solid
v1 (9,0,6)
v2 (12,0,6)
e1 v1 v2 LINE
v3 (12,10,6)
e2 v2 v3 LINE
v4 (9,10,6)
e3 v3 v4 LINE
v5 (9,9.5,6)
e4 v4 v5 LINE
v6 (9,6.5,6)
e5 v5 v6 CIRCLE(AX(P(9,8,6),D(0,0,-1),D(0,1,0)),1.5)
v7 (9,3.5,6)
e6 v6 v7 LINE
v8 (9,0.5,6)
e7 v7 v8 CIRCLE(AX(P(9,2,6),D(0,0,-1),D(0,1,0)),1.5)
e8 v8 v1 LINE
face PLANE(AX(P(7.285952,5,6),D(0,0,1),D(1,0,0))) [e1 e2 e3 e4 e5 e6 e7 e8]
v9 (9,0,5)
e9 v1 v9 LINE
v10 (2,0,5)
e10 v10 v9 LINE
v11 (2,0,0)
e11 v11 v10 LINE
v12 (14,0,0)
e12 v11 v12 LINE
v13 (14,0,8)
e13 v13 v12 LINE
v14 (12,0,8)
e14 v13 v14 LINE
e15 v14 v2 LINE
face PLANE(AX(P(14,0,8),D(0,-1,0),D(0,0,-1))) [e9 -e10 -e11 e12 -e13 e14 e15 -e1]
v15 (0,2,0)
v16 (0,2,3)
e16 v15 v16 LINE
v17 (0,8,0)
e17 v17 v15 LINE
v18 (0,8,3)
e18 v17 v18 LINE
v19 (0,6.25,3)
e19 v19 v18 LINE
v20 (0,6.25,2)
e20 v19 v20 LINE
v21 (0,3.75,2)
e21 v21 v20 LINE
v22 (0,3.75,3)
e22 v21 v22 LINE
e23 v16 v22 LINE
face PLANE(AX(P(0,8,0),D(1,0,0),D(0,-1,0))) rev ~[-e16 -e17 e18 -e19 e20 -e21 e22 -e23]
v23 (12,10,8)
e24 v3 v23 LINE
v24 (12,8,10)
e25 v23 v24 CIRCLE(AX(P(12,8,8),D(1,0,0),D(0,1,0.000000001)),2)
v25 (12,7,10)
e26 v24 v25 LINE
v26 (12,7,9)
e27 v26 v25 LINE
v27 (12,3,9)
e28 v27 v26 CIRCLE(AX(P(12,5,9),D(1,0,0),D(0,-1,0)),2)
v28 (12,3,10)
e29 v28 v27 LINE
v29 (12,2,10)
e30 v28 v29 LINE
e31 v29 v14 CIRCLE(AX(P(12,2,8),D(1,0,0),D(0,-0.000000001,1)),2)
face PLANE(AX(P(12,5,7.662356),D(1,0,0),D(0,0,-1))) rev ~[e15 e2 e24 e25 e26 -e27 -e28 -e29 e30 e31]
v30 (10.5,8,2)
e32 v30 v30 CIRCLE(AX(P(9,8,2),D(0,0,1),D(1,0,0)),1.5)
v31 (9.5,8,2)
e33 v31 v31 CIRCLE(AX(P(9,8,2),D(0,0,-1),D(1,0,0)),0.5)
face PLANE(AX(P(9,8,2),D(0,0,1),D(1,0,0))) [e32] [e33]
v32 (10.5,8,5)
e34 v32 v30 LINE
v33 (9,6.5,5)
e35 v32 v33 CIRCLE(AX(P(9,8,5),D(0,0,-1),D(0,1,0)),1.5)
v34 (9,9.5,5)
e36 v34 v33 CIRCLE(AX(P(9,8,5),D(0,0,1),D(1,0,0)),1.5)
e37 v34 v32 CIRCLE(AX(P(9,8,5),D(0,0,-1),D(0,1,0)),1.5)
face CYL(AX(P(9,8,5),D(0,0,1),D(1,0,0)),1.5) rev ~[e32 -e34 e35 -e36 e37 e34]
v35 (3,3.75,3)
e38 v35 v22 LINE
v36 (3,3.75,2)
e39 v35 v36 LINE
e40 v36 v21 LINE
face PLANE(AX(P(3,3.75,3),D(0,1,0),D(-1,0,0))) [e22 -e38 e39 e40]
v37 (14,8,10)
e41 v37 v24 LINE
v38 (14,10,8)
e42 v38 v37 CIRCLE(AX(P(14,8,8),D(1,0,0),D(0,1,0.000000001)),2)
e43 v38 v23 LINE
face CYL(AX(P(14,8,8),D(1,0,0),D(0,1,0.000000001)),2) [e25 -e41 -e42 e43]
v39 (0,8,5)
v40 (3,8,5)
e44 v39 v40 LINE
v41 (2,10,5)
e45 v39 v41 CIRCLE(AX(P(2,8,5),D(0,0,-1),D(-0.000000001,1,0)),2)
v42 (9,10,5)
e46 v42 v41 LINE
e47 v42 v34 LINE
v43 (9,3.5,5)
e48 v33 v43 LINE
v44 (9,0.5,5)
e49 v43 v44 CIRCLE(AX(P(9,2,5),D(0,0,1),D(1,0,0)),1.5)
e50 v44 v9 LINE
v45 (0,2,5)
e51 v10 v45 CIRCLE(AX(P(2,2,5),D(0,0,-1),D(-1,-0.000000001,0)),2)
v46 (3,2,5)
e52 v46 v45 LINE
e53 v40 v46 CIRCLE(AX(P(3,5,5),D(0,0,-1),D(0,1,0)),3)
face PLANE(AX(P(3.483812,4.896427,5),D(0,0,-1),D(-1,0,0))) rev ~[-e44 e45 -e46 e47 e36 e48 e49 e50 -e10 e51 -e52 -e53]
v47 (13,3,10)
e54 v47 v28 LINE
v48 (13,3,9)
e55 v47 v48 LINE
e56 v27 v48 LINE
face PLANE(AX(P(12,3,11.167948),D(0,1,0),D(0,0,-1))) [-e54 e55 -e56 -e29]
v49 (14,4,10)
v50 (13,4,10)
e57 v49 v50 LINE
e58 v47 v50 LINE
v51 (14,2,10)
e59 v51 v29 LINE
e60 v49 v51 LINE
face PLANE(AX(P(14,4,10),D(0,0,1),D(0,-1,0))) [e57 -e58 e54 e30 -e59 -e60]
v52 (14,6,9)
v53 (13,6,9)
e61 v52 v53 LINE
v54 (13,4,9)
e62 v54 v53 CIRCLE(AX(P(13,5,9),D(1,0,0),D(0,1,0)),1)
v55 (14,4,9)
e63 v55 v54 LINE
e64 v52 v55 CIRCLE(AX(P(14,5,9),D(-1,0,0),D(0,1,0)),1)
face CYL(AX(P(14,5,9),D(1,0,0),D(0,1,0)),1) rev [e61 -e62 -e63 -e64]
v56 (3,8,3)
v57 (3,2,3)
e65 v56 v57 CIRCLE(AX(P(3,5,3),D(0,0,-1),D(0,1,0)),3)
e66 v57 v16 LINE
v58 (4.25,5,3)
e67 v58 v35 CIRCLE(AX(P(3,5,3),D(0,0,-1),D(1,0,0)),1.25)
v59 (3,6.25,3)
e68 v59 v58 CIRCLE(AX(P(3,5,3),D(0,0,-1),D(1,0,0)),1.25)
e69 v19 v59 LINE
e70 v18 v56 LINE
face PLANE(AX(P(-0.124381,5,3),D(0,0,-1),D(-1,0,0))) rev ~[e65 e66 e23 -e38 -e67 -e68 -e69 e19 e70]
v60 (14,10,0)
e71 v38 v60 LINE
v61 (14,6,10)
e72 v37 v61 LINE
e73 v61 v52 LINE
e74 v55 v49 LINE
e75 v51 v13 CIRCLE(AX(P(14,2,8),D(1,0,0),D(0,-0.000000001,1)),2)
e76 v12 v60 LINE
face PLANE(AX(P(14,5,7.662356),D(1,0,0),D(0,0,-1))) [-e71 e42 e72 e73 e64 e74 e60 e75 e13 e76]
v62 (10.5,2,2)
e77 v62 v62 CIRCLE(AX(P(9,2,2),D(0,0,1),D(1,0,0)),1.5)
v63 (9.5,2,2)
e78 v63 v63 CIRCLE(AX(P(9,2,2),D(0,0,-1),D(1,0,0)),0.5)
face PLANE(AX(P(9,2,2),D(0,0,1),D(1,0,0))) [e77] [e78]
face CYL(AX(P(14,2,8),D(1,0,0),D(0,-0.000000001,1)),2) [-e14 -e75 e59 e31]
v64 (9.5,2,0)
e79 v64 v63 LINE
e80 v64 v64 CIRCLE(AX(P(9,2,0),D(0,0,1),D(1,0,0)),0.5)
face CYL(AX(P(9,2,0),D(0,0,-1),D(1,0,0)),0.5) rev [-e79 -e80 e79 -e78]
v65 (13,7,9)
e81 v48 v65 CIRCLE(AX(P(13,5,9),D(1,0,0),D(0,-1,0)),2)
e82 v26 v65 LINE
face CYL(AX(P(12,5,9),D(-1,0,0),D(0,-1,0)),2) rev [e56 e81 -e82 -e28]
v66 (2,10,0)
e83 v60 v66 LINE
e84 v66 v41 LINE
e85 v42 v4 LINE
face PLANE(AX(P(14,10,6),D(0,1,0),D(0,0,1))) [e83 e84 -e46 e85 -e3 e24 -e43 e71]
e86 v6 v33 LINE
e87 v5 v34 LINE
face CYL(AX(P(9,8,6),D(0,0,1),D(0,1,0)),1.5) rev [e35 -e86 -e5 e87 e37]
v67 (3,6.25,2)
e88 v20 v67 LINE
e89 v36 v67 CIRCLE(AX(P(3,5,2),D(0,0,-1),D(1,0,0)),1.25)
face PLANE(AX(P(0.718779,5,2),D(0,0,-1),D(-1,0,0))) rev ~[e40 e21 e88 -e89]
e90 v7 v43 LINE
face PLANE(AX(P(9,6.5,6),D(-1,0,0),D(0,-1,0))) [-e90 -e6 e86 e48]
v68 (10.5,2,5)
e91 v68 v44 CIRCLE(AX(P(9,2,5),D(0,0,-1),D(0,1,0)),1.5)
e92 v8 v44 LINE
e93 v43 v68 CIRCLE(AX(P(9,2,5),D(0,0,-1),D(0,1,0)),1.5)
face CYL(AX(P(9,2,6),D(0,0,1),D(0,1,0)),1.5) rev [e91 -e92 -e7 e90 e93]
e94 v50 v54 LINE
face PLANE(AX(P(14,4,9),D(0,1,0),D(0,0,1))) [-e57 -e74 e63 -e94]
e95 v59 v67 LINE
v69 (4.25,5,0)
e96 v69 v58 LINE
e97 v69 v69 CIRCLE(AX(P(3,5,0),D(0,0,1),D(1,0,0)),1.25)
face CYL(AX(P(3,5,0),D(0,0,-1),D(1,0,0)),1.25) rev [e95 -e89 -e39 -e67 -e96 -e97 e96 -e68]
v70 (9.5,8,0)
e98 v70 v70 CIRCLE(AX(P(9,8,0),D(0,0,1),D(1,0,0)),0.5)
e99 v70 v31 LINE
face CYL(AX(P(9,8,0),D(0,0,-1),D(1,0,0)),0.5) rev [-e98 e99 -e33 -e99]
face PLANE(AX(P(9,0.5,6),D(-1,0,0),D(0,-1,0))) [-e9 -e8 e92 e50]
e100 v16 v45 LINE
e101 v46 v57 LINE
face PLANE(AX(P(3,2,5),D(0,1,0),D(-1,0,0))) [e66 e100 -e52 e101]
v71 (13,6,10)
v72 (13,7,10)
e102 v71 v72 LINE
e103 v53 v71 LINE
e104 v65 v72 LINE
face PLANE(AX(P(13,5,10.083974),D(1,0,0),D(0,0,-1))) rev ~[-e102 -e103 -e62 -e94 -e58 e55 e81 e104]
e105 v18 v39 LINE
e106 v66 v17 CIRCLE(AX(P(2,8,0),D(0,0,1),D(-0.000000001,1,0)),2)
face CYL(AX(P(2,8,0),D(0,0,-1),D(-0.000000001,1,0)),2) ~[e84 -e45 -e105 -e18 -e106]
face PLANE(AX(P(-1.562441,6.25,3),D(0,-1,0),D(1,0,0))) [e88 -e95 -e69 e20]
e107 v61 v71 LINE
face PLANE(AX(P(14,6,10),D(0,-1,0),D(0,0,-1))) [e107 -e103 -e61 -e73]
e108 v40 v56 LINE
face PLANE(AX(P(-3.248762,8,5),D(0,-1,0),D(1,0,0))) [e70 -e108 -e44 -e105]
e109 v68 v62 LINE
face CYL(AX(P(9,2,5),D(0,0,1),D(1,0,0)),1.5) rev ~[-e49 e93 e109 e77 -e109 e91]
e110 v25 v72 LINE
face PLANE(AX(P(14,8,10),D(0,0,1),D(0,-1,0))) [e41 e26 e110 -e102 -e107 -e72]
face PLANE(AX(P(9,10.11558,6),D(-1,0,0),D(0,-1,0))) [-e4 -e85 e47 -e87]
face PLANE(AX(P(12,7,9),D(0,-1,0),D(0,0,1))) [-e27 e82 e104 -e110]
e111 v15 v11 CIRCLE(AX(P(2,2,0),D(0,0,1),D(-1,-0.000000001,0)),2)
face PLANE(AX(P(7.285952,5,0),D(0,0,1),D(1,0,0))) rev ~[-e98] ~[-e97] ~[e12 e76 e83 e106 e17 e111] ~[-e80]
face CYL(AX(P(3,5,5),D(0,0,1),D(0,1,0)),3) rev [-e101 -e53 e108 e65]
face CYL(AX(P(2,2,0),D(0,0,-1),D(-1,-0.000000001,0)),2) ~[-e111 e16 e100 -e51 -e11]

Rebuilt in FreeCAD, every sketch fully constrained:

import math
import FreeCAD as App
import Part
import Sketcher

V = App.Vector
Q = App.Units.Quantity

doc = App.newDocument("Part")
body = doc.addObject("PartDesign::Body", "Body")

# Sketch on XY plane
sketch1 = body.newObject("Sketcher::SketchObject", "Sketch")
sketch1.AttachmentSupport = (doc.getObject("XY_Plane"), [""])
sketch1.MapMode = "FlatFace"
sketch1.addGeometry([
    Part.LineSegment(V(2, 0, 0), V(14, 0, 0)),  # 0
    Part.LineSegment(V(14, 0, 0), V(14, 10, 0)),  # 1
    Part.LineSegment(V(14, 10, 0), V(2, 10, 0)),  # 2
    Part.ArcOfCircle(Part.Circle(V(2, 8, 0), V(0, 0, 1), 2), math.radians(90), math.radians(180)),  # 3
    Part.LineSegment(V(0, 8, 0), V(0, 2, 0)),  # 4
    Part.ArcOfCircle(Part.Circle(V(2, 2, 0), V(0, 0, 1), 2), math.radians(-180), math.radians(-90)),  # 5
    Part.Circle(V(9, 2, 0), V(0, 0, 1), 0.5),  # 6
    Part.Circle(V(3, 5, 0), V(0, 0, 1), 1.2),  # 7
    Part.Circle(V(9, 8, 0), V(0, 0, 1), 0.5),  # 8
], False)
sketch1.addConstraint([
    Sketcher.Constraint("Coincident", 0, 2, 1, 1),
    Sketcher.Constraint("Coincident", 1, 2, 2, 1),
    Sketcher.Constraint("Tangent", 2, 2, 3, 1),
    Sketcher.Constraint("Tangent", 3, 2, 4, 1),
    Sketcher.Constraint("Tangent", 4, 2, 5, 1),
    Sketcher.Constraint("Tangent", 5, 2, 0, 1),
    Sketcher.Constraint("Horizontal", 0),
    Sketcher.Constraint("Vertical", 1),
    Sketcher.Constraint("Horizontal", 2),
    Sketcher.Constraint("Vertical", 4),
    Sketcher.Constraint("Equal", 3, 5),
    Sketcher.Constraint("Equal", 6, 8),
    Sketcher.Constraint("PointOnObject", 0, 2, -1),
    Sketcher.Constraint("PointOnObject", 3, 2, -2),
    Sketcher.Constraint("Horizontal", 5, 3, 6, 3),
    Sketcher.Constraint("Horizontal", 3, 3, 8, 3),
    Sketcher.Constraint("Vertical", 6, 3, 8, 3),
    Sketcher.Constraint("Diameter", 6, Q("1 mm")),
    Sketcher.Constraint("Radius", 3, Q("2 mm")),
    Sketcher.Constraint("Diameter", 7, Q("2.5 mm")),
    Sketcher.Constraint("DistanceX", 0, 1, 0, 2, Q("12 mm")),
    Sketcher.Constraint("DistanceY", 1, 1, 1, 2, Q("10 mm")),
    Sketcher.Constraint("DistanceX", -1, 1, 6, 3, Q("9 mm")),
    Sketcher.Constraint("DistanceX", -1, 1, 7, 3, Q("3 mm")),
    Sketcher.Constraint("DistanceY", -1, 1, 7, 3, Q("5 mm")),
])
pad1 = body.newObject("PartDesign::Pad", "Pad")
pad1.Profile = sketch1
pad1.Length = 6

# Sketch on YZ plane
sketch2 = body.newObject("Sketcher::SketchObject", "Sketch001")
sketch2.AttachmentSupport = (doc.getObject("YZ_Plane"), [""])
sketch2.MapMode = "FlatFace"
sketch2.AttachmentOffset = App.Placement(V(0, 0, 14), App.Rotation())
sketch2.addGeometry([
    Part.LineSegment(V(0, 6, 0), V(10, 6, 0)),  # 0
    Part.LineSegment(V(10, 6, 0), V(10, 8, 0)),  # 1
    Part.ArcOfCircle(Part.Circle(V(8, 8, 0), V(0, 0, 1), 2), math.radians(0), math.radians(90)),  # 2
    Part.LineSegment(V(8, 10, 0), V(6, 10, 0)),  # 3
    Part.LineSegment(V(6, 10, 0), V(6, 9, 0)),  # 4
    Part.ArcOfCircle(Part.Circle(V(5, 9, 0), V(0, 0, 1), 1), math.radians(180), math.radians(360)),  # 5
    Part.LineSegment(V(4, 9, 0), V(4, 10, 0)),  # 6
    Part.LineSegment(V(4, 10, 0), V(2, 10, 0)),  # 7
    Part.ArcOfCircle(Part.Circle(V(2, 8, 0), V(0, 0, 1), 2), math.radians(90), math.radians(180)),  # 8
    Part.LineSegment(V(0, 8, 0), V(0, 6, 0)),  # 9
], False)
sketch2.addConstraint([
    Sketcher.Constraint("Coincident", 0, 2, 1, 1),
    Sketcher.Constraint("Tangent", 1, 2, 2, 1),
    Sketcher.Constraint("Tangent", 2, 2, 3, 1),
    Sketcher.Constraint("Coincident", 3, 2, 4, 1),
    Sketcher.Constraint("Tangent", 4, 2, 5, 2),
    Sketcher.Constraint("Tangent", 5, 1, 6, 1),
    Sketcher.Constraint("Coincident", 6, 2, 7, 1),
    Sketcher.Constraint("Tangent", 7, 2, 8, 1),
    Sketcher.Constraint("Tangent", 8, 2, 9, 1),
    Sketcher.Constraint("Coincident", 9, 2, 0, 1),
    Sketcher.Constraint("Horizontal", 0),
    Sketcher.Constraint("Vertical", 1),
    Sketcher.Constraint("Horizontal", 3),
    Sketcher.Constraint("Vertical", 4),
    Sketcher.Constraint("Vertical", 6),
    Sketcher.Constraint("Horizontal", 7),
    Sketcher.Constraint("Vertical", 9),
    Sketcher.Constraint("Equal", 2, 8),
    Sketcher.Constraint("PointOnObject", 8, 2, -2),
    Sketcher.Constraint("Horizontal", 2, 3, 8, 3),
    Sketcher.Constraint("Equal", 3, 7),
    Sketcher.Constraint("Equal", 7, 1),
    Sketcher.Constraint("Radius", 2, Q("2 mm")),
    Sketcher.Constraint("Radius", 5, Q("1 mm")),
    Sketcher.Constraint("DistanceX", 0, 1, 0, 2, Q("10 mm")),
    Sketcher.Constraint("DistanceY", 4, 2, 4, 1, Q("1 mm")),
    Sketcher.Constraint("DistanceY", -1, 1, 2, 3, Q("8 mm")),
])
pad2 = body.newObject("PartDesign::Pad", "Pad001")
pad2.Profile = sketch2
pad2.Length = 2
pad2.Reversed = True

# Sketch on YZ plane
sketch3 = body.newObject("Sketcher::SketchObject", "Sketch002")
sketch3.AttachmentSupport = (doc.getObject("YZ_Plane"), [""])
sketch3.MapMode = "FlatFace"
sketch3.AttachmentOffset = App.Placement(V(0, 0, 12), App.Rotation())
sketch3.addGeometry([
    Part.LineSegment(V(7, 11.2, 0), V(7, 9, 0)),
    Part.ArcOfCircle(Part.Circle(V(5, 9, 0), V(0, 0, 1), 2), math.radians(180), math.radians(360)),
    Part.LineSegment(V(3, 9, 0), V(3, 11.2, 0)),
    Part.ArcOfCircle(Part.Circle(V(5, 11.2, 0), V(0, 0, 1), 2), math.radians(0), math.radians(180)),
], False)
sketch3.addConstraint([
    Sketcher.Constraint("Tangent", 0, 2, 1, 2),
    Sketcher.Constraint("Tangent", 1, 1, 2, 1),
    Sketcher.Constraint("Tangent", 2, 2, 3, 2),
    Sketcher.Constraint("Tangent", 3, 1, 0, 1),
    Sketcher.Constraint("Vertical", 0),
    Sketcher.Constraint("Vertical", 2),
    Sketcher.Constraint("Radius", 1, Q("2 mm")),
    Sketcher.Constraint("DistanceX", -1, 1, 1, 3, Q("5 mm")),
    Sketcher.Constraint("DistanceY", -1, 1, 1, 3, Q("9 mm")),
    Sketcher.Constraint("DistanceY", 0, 2, 0, 1, Q("2.167948 mm")),
])
pocket1 = body.newObject("PartDesign::Pocket", "Pocket")
pocket1.Profile = sketch3
pocket1.Length = 1
pocket1.Reversed = True

# Sketch on XY plane
sketch4 = body.newObject("Sketcher::SketchObject", "Sketch003")
sketch4.AttachmentSupport = (doc.getObject("XY_Plane"), [""])
sketch4.MapMode = "FlatFace"
sketch4.AttachmentOffset = App.Placement(V(0, 0, 6), App.Rotation())
sketch4.addGeometry([
    Part.LineSegment(V(9, 9.5, 0), V(9, 10.1, 0)),  # 0
    Part.LineSegment(V(9, 10.1, 0), V(-3.1, 10.1, 0)),  # 1
    Part.LineSegment(V(-3.1, 10.1, 0), V(-3.1, -0.3, 0)),  # 2
    Part.LineSegment(V(-3.1, -0.3, 0), V(9, -0.3, 0)),  # 3
    Part.LineSegment(V(9, -0.3, 0), V(9, 0.5, 0)),  # 4
    Part.ArcOfCircle(Part.Circle(V(9, 2, 0), V(0, 0, 1), 1.5), math.radians(-90), math.radians(90)),  # 5
    Part.LineSegment(V(9, 3.5, 0), V(9, 6.5, 0)),  # 6
    Part.ArcOfCircle(Part.Circle(V(9, 8, 0), V(0, 0, 1), 1.5), math.radians(-90), math.radians(90)),  # 7
], False)
sketch4.addConstraint([
    Sketcher.Constraint("Coincident", 0, 2, 1, 1),
    Sketcher.Constraint("Coincident", 1, 2, 2, 1),
    Sketcher.Constraint("Coincident", 2, 2, 3, 1),
    Sketcher.Constraint("Coincident", 3, 2, 4, 1),
    Sketcher.Constraint("Coincident", 4, 2, 5, 1),
    Sketcher.Constraint("Coincident", 5, 2, 6, 1),
    Sketcher.Constraint("Coincident", 6, 2, 7, 1),
    Sketcher.Constraint("Coincident", 7, 2, 0, 1),
    Sketcher.Constraint("Vertical", 0),
    Sketcher.Constraint("Horizontal", 1),
    Sketcher.Constraint("Vertical", 2),
    Sketcher.Constraint("Horizontal", 3),
    Sketcher.Constraint("Vertical", 4),
    Sketcher.Constraint("Vertical", 6),
    Sketcher.Constraint("Equal", 5, 7),
    Sketcher.Constraint("Vertical", 5, 3, 7, 3),
    Sketcher.Constraint("Vertical", 7, 3, 0, 2),
    Sketcher.Constraint("Vertical", 0, 2, 3, 2),
    Sketcher.Constraint("Vertical", 4, 2, 5, 2),
    Sketcher.Constraint("Radius", 5, Q("1.5 mm")),
    Sketcher.Constraint("DistanceY", 6, 1, 6, 2, Q("3 mm")),
    Sketcher.Constraint("DistanceX", -1, 1, 5, 3, Q("9 mm")),
    Sketcher.Constraint("DistanceY", -1, 1, 5, 3, Q("2 mm")),
    Sketcher.Constraint("DistanceY", 4, 1, 4, 2, Q("0.836498 mm")),
    Sketcher.Constraint("DistanceY", 0, 1, 0, 2, Q("0.61558 mm")),
    Sketcher.Constraint("DistanceX", 1, 2, 1, 1, Q("12.111242 mm")),
])
pocket2 = body.newObject("PartDesign::Pocket", "Pocket001")
pocket2.Profile = sketch4
pocket2.Length = 1

# Sketch on XY plane
sketch5 = body.newObject("Sketcher::SketchObject", "Sketch004")
sketch5.AttachmentSupport = (doc.getObject("XY_Plane"), [""])
sketch5.MapMode = "FlatFace"
sketch5.AttachmentOffset = App.Placement(V(0, 0, 5), App.Rotation())
sketch5.addGeometry([
    Part.LineSegment(V(-3.2, 2, 0), V(3, 2, 0)),
    Part.ArcOfCircle(Part.Circle(V(3, 5, 0), V(0, 0, 1), 3), math.radians(-90), math.radians(90)),
    Part.LineSegment(V(3, 8, 0), V(-3.2, 8, 0)),
    Part.ArcOfCircle(Part.Circle(V(-3.2, 5, 0), V(0, 0, 1), 3), math.radians(90), math.radians(270)),
], False)
sketch5.addConstraint([
    Sketcher.Constraint("Tangent", 0, 2, 1, 1),
    Sketcher.Constraint("Tangent", 1, 2, 2, 1),
    Sketcher.Constraint("Tangent", 2, 2, 3, 1),
    Sketcher.Constraint("Tangent", 3, 2, 0, 1),
    Sketcher.Constraint("Horizontal", 0),
    Sketcher.Constraint("Horizontal", 2),
    Sketcher.Constraint("Radius", 1, Q("3 mm")),
    Sketcher.Constraint("DistanceX", -1, 1, 1, 3, Q("3 mm")),
    Sketcher.Constraint("DistanceY", -1, 1, 1, 3, Q("5 mm")),
    Sketcher.Constraint("DistanceX", 0, 1, 0, 2, Q("6.248762 mm")),
])
pocket3 = body.newObject("PartDesign::Pocket", "Pocket002")
pocket3.Profile = sketch5
pocket3.Length = 2

# Sketch on XY plane
sketch6 = body.newObject("Sketcher::SketchObject", "Sketch005")
sketch6.AttachmentSupport = (doc.getObject("XY_Plane"), [""])
sketch6.MapMode = "FlatFace"
sketch6.AttachmentOffset = App.Placement(V(0, 0, 3), App.Rotation())
sketch6.addGeometry([
    Part.LineSegment(V(-1.6, 3.8, 0), V(3, 3.8, 0)),
    Part.ArcOfCircle(Part.Circle(V(3, 5, 0), V(0, 0, 1), 1.2), math.radians(-90), math.radians(90)),
    Part.LineSegment(V(3, 6.2, 0), V(-1.6, 6.2, 0)),
    Part.ArcOfCircle(Part.Circle(V(-1.6, 5, 0), V(0, 0, 1), 1.2), math.radians(90), math.radians(270)),
], False)
sketch6.addConstraint([
    Sketcher.Constraint("Tangent", 0, 2, 1, 1),
    Sketcher.Constraint("Tangent", 1, 2, 2, 1),
    Sketcher.Constraint("Tangent", 2, 2, 3, 1),
    Sketcher.Constraint("Tangent", 3, 2, 0, 1),
    Sketcher.Constraint("Horizontal", 0),
    Sketcher.Constraint("Horizontal", 2),
    Sketcher.Constraint("Radius", 1, Q("1.25 mm")),
    Sketcher.Constraint("DistanceX", -1, 1, 1, 3, Q("3 mm")),
    Sketcher.Constraint("DistanceY", -1, 1, 1, 3, Q("5 mm")),
    Sketcher.Constraint("DistanceX", 0, 1, 0, 2, Q("4.562441 mm")),
])
pocket4 = body.newObject("PartDesign::Pocket", "Pocket003")
pocket4.Profile = sketch6
pocket4.Length = 1

# Sketch on XY plane
sketch7 = body.newObject("Sketcher::SketchObject", "Sketch006")
sketch7.AttachmentSupport = (doc.getObject("XY_Plane"), [""])
sketch7.MapMode = "FlatFace"
sketch7.AttachmentOffset = App.Placement(V(0, 0, 5), App.Rotation())
sketch7.addGeometry([
    Part.Circle(V(9, 8, 0), V(0, 0, 1), 1.5),
    Part.Circle(V(9, 2, 0), V(0, 0, 1), 1.5),
], False)
sketch7.addConstraint([
    Sketcher.Constraint("Equal", 0, 1),
    Sketcher.Constraint("Vertical", 0, 3, 1, 3),
    Sketcher.Constraint("Diameter", 0, Q("3 mm")),
    Sketcher.Constraint("DistanceX", -1, 1, 0, 3, Q("9 mm")),
    Sketcher.Constraint("DistanceY", -1, 1, 0, 3, Q("8 mm")),
    Sketcher.Constraint("DistanceY", -1, 1, 1, 3, Q("2 mm")),
])
pocket5 = body.newObject("PartDesign::Pocket", "Pocket004")
pocket5.Profile = sketch7
pocket5.Length = 3

doc.recompute()
